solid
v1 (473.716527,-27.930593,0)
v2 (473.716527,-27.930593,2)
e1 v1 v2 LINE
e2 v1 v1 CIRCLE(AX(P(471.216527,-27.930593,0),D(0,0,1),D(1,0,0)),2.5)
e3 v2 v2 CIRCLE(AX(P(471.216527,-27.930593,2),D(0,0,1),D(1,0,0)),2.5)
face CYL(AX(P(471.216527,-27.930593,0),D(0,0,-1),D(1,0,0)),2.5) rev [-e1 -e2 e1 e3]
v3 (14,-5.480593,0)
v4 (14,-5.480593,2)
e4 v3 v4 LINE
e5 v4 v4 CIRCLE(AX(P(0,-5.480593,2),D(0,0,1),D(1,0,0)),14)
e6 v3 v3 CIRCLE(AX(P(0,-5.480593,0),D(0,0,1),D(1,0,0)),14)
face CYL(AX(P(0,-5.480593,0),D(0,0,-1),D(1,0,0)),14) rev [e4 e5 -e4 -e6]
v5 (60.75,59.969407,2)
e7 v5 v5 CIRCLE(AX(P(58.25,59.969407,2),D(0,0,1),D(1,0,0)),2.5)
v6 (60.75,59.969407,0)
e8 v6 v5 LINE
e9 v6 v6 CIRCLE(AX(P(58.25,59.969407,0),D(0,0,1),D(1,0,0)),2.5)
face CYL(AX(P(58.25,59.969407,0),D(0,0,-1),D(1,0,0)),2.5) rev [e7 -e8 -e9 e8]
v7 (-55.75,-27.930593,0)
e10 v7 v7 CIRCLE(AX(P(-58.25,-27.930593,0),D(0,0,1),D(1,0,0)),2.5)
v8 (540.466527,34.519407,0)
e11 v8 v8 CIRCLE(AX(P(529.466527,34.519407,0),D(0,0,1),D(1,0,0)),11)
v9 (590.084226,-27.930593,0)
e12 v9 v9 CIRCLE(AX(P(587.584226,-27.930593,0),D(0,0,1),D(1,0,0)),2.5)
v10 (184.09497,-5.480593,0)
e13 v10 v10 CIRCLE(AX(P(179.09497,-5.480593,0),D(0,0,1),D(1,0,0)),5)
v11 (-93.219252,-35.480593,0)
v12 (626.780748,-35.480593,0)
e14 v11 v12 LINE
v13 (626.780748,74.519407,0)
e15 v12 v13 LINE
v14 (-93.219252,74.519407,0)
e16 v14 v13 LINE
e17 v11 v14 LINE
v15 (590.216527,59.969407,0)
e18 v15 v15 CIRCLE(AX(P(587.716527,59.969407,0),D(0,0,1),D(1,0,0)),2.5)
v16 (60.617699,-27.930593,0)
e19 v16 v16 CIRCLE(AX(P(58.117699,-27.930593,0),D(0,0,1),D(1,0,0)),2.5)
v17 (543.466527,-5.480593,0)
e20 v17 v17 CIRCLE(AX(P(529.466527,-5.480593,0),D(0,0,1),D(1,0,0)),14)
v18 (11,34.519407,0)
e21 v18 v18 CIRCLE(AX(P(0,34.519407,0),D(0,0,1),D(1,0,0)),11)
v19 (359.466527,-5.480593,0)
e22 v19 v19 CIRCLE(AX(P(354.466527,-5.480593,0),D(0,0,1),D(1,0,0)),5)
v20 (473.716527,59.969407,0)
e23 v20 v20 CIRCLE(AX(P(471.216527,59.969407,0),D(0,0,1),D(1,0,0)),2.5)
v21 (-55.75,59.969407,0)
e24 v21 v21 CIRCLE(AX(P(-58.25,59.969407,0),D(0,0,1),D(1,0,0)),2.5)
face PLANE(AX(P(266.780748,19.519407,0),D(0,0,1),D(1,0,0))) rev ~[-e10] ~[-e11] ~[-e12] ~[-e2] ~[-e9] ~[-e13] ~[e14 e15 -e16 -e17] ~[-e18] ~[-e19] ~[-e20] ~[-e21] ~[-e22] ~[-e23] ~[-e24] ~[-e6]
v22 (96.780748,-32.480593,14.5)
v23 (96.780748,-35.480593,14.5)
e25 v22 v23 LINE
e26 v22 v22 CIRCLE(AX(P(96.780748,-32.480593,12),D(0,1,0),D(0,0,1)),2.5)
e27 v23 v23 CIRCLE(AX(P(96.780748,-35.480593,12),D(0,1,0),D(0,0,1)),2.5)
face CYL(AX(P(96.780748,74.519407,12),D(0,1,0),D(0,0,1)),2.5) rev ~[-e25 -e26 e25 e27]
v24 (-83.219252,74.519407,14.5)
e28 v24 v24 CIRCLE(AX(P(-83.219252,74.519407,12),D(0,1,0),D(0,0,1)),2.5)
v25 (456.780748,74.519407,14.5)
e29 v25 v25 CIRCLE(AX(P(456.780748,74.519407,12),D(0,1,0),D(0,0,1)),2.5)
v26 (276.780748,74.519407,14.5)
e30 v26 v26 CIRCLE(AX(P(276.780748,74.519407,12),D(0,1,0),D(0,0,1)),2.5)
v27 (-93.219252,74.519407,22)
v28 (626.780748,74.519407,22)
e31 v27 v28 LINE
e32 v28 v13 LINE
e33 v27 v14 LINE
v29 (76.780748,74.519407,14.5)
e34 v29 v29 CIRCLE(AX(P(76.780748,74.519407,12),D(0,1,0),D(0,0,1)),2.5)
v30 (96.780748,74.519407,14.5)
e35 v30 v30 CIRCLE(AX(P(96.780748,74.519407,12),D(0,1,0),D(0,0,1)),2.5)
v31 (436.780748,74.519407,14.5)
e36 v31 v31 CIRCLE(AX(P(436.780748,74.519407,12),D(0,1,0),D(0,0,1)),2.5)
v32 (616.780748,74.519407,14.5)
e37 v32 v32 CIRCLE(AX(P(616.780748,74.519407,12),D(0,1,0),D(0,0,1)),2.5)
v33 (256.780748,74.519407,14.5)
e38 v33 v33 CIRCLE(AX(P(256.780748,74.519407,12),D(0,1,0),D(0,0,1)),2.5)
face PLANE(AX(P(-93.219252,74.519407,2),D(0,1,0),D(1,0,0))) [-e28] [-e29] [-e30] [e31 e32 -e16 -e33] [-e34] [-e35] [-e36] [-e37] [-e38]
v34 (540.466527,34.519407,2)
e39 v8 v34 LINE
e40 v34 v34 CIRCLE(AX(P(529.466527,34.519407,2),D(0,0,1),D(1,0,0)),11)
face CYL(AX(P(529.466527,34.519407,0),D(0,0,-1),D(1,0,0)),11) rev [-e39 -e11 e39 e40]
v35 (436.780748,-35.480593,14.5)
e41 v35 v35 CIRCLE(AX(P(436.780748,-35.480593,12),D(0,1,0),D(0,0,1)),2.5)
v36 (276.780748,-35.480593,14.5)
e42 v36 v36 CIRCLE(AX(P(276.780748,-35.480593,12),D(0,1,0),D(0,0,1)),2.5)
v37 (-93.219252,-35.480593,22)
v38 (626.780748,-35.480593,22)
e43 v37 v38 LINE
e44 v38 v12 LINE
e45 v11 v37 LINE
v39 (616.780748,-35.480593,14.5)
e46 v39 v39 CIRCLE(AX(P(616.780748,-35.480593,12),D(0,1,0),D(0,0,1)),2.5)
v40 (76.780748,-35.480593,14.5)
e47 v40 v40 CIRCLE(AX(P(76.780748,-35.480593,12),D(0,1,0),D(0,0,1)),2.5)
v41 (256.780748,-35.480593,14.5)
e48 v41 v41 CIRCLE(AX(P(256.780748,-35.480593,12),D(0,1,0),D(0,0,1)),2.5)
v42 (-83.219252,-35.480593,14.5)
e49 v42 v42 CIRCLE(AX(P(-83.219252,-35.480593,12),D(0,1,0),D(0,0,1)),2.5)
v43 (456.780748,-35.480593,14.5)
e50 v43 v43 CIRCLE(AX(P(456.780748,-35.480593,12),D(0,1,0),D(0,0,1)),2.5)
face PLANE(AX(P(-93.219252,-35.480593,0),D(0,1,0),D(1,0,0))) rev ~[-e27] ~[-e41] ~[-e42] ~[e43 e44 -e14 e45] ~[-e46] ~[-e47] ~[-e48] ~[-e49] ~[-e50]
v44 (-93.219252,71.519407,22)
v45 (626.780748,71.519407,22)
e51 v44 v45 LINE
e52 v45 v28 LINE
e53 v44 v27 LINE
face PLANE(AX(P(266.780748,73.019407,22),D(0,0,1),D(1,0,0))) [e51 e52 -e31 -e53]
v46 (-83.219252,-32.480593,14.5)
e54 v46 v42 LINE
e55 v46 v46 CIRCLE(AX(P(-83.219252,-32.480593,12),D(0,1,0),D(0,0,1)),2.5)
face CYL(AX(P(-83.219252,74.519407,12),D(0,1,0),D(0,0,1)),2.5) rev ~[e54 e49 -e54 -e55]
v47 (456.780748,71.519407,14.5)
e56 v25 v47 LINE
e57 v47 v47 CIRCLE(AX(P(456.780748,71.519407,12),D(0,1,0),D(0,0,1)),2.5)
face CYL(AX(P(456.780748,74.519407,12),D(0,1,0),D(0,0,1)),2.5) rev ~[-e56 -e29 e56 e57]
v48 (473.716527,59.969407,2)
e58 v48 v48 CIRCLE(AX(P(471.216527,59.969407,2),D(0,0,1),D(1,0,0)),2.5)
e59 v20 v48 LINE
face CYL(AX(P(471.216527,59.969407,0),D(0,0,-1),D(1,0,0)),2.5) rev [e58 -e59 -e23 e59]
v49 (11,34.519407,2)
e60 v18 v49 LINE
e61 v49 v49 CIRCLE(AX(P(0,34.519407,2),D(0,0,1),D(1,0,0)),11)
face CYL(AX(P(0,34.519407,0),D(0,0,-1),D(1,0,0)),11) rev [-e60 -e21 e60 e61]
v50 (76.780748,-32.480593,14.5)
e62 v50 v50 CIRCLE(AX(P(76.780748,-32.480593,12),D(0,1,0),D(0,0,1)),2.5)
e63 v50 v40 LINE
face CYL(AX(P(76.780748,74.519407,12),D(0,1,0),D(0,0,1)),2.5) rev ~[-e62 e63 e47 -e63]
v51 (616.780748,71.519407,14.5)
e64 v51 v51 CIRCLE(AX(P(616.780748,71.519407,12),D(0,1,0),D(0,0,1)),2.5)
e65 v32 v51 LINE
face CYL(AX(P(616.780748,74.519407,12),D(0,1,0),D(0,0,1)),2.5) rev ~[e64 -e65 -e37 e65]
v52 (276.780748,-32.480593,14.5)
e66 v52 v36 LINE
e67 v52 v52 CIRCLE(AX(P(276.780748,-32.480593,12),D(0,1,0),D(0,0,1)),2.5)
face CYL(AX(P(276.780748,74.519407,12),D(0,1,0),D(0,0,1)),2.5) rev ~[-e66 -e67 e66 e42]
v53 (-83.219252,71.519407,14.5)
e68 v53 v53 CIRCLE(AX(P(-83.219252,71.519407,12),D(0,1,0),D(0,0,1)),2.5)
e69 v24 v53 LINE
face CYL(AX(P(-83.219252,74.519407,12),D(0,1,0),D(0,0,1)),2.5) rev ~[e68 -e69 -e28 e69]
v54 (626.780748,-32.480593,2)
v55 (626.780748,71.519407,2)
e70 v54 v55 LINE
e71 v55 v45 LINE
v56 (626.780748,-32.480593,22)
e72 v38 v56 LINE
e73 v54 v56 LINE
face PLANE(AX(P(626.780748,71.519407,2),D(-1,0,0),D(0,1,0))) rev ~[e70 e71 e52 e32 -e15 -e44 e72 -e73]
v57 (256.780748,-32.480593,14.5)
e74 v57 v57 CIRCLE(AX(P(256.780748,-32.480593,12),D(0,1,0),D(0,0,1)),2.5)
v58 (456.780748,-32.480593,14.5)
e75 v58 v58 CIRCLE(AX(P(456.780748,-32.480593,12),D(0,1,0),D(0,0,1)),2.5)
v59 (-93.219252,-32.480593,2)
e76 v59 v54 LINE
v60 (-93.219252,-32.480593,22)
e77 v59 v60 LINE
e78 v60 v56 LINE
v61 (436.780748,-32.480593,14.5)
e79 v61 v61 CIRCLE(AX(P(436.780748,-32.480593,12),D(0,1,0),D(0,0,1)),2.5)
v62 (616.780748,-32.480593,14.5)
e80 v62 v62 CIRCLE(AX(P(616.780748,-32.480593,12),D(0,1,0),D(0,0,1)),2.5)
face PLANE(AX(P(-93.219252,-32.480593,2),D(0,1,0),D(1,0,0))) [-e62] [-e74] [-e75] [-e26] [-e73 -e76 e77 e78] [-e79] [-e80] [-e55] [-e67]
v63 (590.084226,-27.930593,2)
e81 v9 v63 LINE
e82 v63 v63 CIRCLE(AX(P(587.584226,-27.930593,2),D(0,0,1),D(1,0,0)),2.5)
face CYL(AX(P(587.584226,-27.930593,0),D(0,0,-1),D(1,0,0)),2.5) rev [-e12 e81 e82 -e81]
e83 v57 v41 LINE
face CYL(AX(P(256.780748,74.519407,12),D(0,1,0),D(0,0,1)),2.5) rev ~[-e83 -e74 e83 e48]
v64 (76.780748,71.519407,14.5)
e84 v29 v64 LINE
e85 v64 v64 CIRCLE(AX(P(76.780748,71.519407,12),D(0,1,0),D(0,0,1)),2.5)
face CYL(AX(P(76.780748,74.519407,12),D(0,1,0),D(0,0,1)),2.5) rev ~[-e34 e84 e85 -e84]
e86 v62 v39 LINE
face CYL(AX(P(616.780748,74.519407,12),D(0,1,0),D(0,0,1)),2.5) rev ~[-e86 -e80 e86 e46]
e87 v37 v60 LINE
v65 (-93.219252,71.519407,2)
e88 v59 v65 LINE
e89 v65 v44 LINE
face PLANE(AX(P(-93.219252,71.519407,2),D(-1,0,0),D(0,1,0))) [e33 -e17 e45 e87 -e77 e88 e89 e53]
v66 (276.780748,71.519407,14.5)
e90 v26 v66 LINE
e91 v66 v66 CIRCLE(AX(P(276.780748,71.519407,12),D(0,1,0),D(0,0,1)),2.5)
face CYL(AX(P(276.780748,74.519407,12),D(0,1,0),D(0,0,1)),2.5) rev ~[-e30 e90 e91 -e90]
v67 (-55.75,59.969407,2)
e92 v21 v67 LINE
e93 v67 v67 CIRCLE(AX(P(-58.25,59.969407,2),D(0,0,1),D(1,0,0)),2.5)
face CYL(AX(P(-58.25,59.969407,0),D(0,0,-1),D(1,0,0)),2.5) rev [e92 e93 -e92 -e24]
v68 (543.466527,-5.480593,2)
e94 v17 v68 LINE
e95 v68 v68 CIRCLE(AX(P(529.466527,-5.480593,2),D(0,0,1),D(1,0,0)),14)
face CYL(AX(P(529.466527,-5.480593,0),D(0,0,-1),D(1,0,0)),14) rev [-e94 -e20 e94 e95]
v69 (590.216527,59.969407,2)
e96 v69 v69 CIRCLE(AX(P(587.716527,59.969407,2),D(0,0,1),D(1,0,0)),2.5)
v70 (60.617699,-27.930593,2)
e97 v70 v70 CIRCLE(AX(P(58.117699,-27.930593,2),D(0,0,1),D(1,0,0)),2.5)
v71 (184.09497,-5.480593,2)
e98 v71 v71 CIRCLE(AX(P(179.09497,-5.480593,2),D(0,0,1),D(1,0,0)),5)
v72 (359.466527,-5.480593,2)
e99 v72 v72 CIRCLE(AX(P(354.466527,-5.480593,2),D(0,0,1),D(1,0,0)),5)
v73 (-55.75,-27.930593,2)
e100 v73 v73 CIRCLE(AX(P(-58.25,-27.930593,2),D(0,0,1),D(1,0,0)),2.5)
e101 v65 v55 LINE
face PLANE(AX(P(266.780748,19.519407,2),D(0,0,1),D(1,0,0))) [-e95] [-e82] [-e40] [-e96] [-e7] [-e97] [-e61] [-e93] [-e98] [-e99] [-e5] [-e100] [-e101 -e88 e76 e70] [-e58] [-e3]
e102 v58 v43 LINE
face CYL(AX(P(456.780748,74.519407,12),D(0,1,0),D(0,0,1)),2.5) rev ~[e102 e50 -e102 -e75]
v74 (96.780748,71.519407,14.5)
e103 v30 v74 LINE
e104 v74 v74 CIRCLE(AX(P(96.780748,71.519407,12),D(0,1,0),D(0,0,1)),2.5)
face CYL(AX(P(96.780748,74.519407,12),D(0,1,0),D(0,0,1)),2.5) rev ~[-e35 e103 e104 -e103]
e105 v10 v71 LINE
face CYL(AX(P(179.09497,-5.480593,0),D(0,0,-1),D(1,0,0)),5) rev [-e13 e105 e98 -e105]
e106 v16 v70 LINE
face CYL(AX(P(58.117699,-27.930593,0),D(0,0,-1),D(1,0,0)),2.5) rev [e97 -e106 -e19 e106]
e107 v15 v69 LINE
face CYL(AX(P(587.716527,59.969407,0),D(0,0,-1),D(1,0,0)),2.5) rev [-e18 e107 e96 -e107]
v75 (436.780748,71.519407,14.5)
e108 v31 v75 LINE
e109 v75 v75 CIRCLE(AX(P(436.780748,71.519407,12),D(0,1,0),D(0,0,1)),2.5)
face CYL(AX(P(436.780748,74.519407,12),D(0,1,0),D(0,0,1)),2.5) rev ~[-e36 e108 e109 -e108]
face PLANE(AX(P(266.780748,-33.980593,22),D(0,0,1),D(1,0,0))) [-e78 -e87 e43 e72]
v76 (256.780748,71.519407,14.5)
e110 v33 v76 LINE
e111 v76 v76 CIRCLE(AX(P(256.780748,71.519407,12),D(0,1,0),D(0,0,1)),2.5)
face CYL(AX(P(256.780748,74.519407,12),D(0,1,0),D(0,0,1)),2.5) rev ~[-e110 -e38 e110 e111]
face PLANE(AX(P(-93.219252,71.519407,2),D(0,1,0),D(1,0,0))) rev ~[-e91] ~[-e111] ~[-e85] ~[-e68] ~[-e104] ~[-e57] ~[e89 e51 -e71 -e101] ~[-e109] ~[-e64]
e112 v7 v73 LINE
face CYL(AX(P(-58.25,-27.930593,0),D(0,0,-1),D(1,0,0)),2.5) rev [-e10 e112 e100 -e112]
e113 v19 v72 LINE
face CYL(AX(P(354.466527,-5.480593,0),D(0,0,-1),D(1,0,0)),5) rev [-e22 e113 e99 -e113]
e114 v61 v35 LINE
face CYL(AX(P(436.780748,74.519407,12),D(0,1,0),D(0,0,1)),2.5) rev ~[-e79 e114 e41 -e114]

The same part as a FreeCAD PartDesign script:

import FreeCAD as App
import Part
import Sketcher

V = App.Vector
Q = App.Units.Quantity

doc = App.newDocument("Part")
body = doc.addObject("PartDesign::Body", "Body")

# Sketch on XY plane
sketch1 = doc.addObject("Sketcher::SketchObject", "Sketch")
body.addObject(sketch1)
sketch1.AttachmentSupport = (doc.XY_Plane, [""])
sketch1.MapMode = "FlatFace"
sketch1.addGeometry(Part.LineSegment(V(-93.2, 74.5, 0), V(-93.2, -35.5, 0)), False)
sketch1.addGeometry(Part.LineSegment(V(-93.2, -35.5, 0), V(626.8, -35.5, 0)), False)
sketch1.addGeometry(Part.LineSegment(V(626.8, -35.5, 0), V(626.8, 74.5, 0)), False)
sketch1.addGeometry(Part.LineSegment(V(626.8, 74.5, 0), V(-93.2, 74.5, 0)), False)
sketch1.addGeometry(Part.Circle(V(-58.2, -27.9, 0), V(0, 0, 1), 2.5), False)
sketch1.addGeometry(Part.Circle(V(58.1, -27.9, 0), V(0, 0, 1), 2.5), False)
sketch1.addGeometry(Part.Circle(V(0, -5.5, 0), V(0, 0, 1), 14), False)
sketch1.addGeometry(Part.Circle(V(179.1, -5.5, 0), V(0, 0, 1), 5), False)
sketch1.addGeometry(Part.Circle(V(471.2, -27.9, 0), V(0, 0, 1), 2.5), False)
sketch1.addGeometry(Part.Circle(V(587.6, -27.9, 0), V(0, 0, 1), 2.5), False)
sketch1.addGeometry(Part.Circle(V(354.5, -5.5, 0), V(0, 0, 1), 5), False)
sketch1.addGeometry(Part.Circle(V(529.5, -5.5, 0), V(0, 0, 1), 14), False)
sketch1.addGeometry(Part.Circle(V(0, 34.5, 0), V(0, 0, 1), 11), False)
sketch1.addGeometry(Part.Circle(V(-58.2, 60, 0), V(0, 0, 1), 2.5), False)
sketch1.addGeometry(Part.Circle(V(58.2, 60, 0), V(0, 0, 1), 2.5), False)
sketch1.addGeometry(Part.Circle(V(529.5, 34.5, 0), V(0, 0, 1), 11), False)
sketch1.addGeometry(Part.Circle(V(471.2, 60, 0), V(0, 0, 1), 2.5), False)
sketch1.addGeometry(Part.Circle(V(587.7, 60, 0), V(0, 0, 1), 2.5), False)
sketch1.addConstraint(Sketcher.Constraint("Coincident", 0, 2, 1, 1))
sketch1.addConstraint(Sketcher.Constraint("Coincident", 1, 2, 2, 1))
sketch1.addConstraint(Sketcher.Constraint("Coincident", 2, 2, 3, 1))
sketch1.addConstraint(Sketcher.Constraint("Coincident", 3, 2, 0, 1))
sketch1.addConstraint(Sketcher.Constraint("Vertical", 0))
sketch1.addConstraint(Sketcher.Constraint("Horizontal", 1))
sketch1.addConstraint(Sketcher.Constraint("Vertical", 2))
sketch1.addConstraint(Sketcher.Constraint("Horizontal", 3))
sketch1.addConstraint(Sketcher.Constraint("Equal", 4, 5))
sketch1.addConstraint(Sketcher.Constraint("Equal", 5, 8))
sketch1.addConstraint(Sketcher.Constraint("Equal", 8, 9))
sketch1.addConstraint(Sketcher.Constraint("Equal", 7, 10))
sketch1.addConstraint(Sketcher.Constraint("Equal", 6, 11))
sketch1.addConstraint(Sketcher.Constraint("Equal", 9, 13))
sketch1.addConstraint(Sketcher.Constraint("Equal", 13, 14))
sketch1.addConstraint(Sketcher.Constraint("Equal", 12, 15))
sketch1.addConstraint(Sketcher.Constraint("Equal", 14, 16))
sketch1.addConstraint(Sketcher.Constraint("Equal", 16, 17))
sketch1.addConstraint(Sketcher.Constraint("Symmetric", 13, 3, 14, 3, -2))
sketch1.addConstraint(Sketcher.Constraint("PointOnObject", 6, 3, -2))
sketch1.addConstraint(Sketcher.Constraint("PointOnObject", 12, 3, -2))
sketch1.addConstraint(Sketcher.Constraint("Horizontal", 4, 3, 5, 3))
sketch1.addConstraint(Sketcher.Constraint("Horizontal", 6, 3, 7, 3))
sketch1.addConstraint(Sketcher.Constraint("Horizontal", 5, 3, 8, 3))
sketch1.addConstraint(Sketcher.Constraint("Horizontal", 8, 3, 9, 3))
sketch1.addConstraint(Sketcher.Constraint("Horizontal", 7, 3, 10, 3))
sketch1.addConstraint(Sketcher.Constraint("Horizontal", 10, 3, 11, 3))
sketch1.addConstraint(Sketcher.Constraint("Horizontal", 12, 3, 15, 3))
sketch1.addConstraint(Sketcher.Constraint("Horizontal", 14, 3, 16, 3))
sketch1.addConstraint(Sketcher.Constraint("Horizontal", 16, 3, 17, 3))
sketch1.addConstraint(Sketcher.Constraint("Vertical", 4, 3, 13, 3))
sketch1.addConstraint(Sketcher.Constraint("Vertical", 11, 3, 15, 3))
sketch1.addConstraint(Sketcher.Constraint("Vertical", 8, 3, 16, 3))
sketch1.addConstraint(Sketcher.Constraint("Diameter", 4, Q("5 mm")))
sketch1.addConstraint(Sketcher.Constraint("Diameter", 6, Q("28 mm")))
sketch1.addConstraint(Sketcher.Constraint("Diameter", 7, Q("10 mm")))
sketch1.addConstraint(Sketcher.Constraint("Diameter", 12, Q("22 mm")))
sketch1.addConstraint(Sketcher.Constraint("DistanceX", 1, 1, 1, 2, Q("720 mm")))
sketch1.addConstraint(Sketcher.Constraint("DistanceY", 0, 2, 0, 1, Q("110 mm")))
sketch1.addConstraint(Sketcher.Constraint("DistanceX", 10, 3, 11, 3, Q("175 mm")))
sketch1.addConstraint(Sketcher.Constraint("DistanceY", 6, 3, 12, 3, Q("40 mm")))
sketch1.addConstraint(Sketcher.Constraint("DistanceY", 0, 2, 6, 3, Q("30 mm")))
sketch1.addConstraint(Sketcher.Constraint("DistanceY", 4, 3, 13, 3, Q("87.9 mm")))
sketch1.addConstraint(Sketcher.Constraint("DistanceX", 13, 3, 14, 3, Q("116.5 mm")))
sketch1.addConstraint(Sketcher.Constraint("DistanceX", 16, 3, 17, 3, Q("116.5 mm")))
sketch1.addConstraint(Sketcher.Constraint("DistanceY", 5, 3, 6, 3, Q("22.45 mm")))
sketch1.addConstraint(Sketcher.Constraint("DistanceX", 10, 3, 8, 3, Q("116.75 mm")))
sketch1.addConstraint(Sketcher.Constraint("DistanceX", -1, 1, 5, 3, Q("58.117699 mm")))
sketch1.addConstraint(Sketcher.Constraint("DistanceX", 8, 3, 9, 3, Q("116.367699 mm")))
sketch1.addConstraint(Sketcher.Constraint("DistanceX", -1, 1, 7, 3, Q("179.09497 mm")))
sketch1.addConstraint(Sketcher.Constraint("DistanceX", 0, 2, -1, 1, Q("93.219252 mm")))
sketch1.addConstraint(Sketcher.Constraint("DistanceX", 11, 3, 1, 2, Q("97.314222 mm")))
sketch1.addConstraint(Sketcher.Constraint("DistanceY", 4, 3, -1, 1, Q("27.930593 mm")))
pad1 = doc.addObject("PartDesign::Pad", "Pad")
body.addObject(pad1)
pad1.Profile = sketch1
pad1.Length = 2

# Sketch on XY plane
sketch2 = doc.addObject("Sketcher::SketchObject", "Sketch001")
body.addObject(sketch2)
sketch2.AttachmentSupport = (doc.XY_Plane, [""])
sketch2.MapMode = "FlatFace"
sketch2.AttachmentOffset = App.Placement(V(0, 0, 2), App.Rotation())
sketch2.addGeometry(Part.LineSegment(V(-93.2, 74.5, 0), V(-93.2, 71.5, 0)), False)
sketch2.addGeometry(Part.LineSegment(V(-93.2, 71.5, 0), V(626.8, 71.5, 0)), False)
sketch2.addGeometry(Part.LineSegment(V(626.8, 71.5, 0), V(626.8, 74.5, 0)), False)
sketch2.addGeometry(Part.LineSegment(V(626.8, 74.5, 0), V(-93.2, 74.5, 0)), False)
sketch2.addGeometry(Part.LineSegment(V(-93.2, -32.5, 0), V(-93.2, -35.5, 0)), False)
sketch2.addGeometry(Part.LineSegment(V(-93.2, -35.5, 0), V(626.8, -35.5, 0)), False)
sketch2.addGeometry(Part.LineSegment(V(626.8, -35.5, 0), V(626.8, -32.5, 0)), False)
sketch2.addGeometry(Part.LineSegment(V(626.8, -32.5, 0), V(-93.2, -32.5, 0)), False)
sketch2.addConstraint(Sketcher.Constraint("Coincident", 0, 2, 1, 1))
sketch2.addConstraint(Sketcher.Constraint("Coincident", 1, 2, 2, 1))
sketch2.addConstraint(Sketcher.Constraint("Coincident", 2, 2, 3, 1))
sketch2.addConstraint(Sketcher.Constraint("Coincident", 3, 2, 0, 1))
sketch2.addConstraint(Sketcher.Constraint("Coincident", 4, 2, 5, 1))
sketch2.addConstraint(Sketcher.Constraint("Coincident", 5, 2, 6, 1))
sketch2.addConstraint(Sketcher.Constraint("Coincident", 6, 2, 7, 1))
sketch2.addConstraint(Sketcher.Constraint("Coincident", 7, 2, 4, 1))
sketch2.addConstraint(Sketcher.Constraint("Vertical", 0))
sketch2.addConstraint(Sketcher.Constraint("Horizontal", 1))
sketch2.addConstraint(Sketcher.Constraint("Vertical", 2))
sketch2.addConstraint(Sketcher.Constraint("Horizontal", 3))
sketch2.addConstraint(Sketcher.Constraint("Vertical", 4))
sketch2.addConstraint(Sketcher.Constraint("Horizontal", 5))
sketch2.addConstraint(Sketcher.Constraint("Vertical", 6))
sketch2.addConstraint(Sketcher.Constraint("Horizontal", 7))
sketch2.addConstraint(Sketcher.Constraint("Vertical", 3, 2, 4, 2))
sketch2.addConstraint(Sketcher.Constraint("Vertical", 2, 2, 5, 2))
sketch2.addConstraint(Sketcher.Constraint("Equal", 2, 4))
sketch2.addConstraint(Sketcher.Constraint("DistanceX", 1, 1, 1, 2, Q("720 mm")))
sketch2.addConstraint(Sketcher.Constraint("DistanceY", 0, 2, 0, 1, Q("3 mm")))
sketch2.addConstraint(Sketcher.Constraint("DistanceY", 4, 2, 0, 2, Q("107 mm")))
sketch2.addConstraint(Sketcher.Constraint("DistanceX", 0, 2, -1, 1, Q("93.219252 mm")))
sketch2.addConstraint(Sketcher.Constraint("DistanceY", -1, 1, 0, 2, Q("71.519407 mm")))
pad2 = doc.addObject("PartDesign::Pad", "Pad001")
body.addObject(pad2)
pad2.Profile = sketch2
pad2.Length = 20

# Sketch on XZ plane
sketch3 = doc.addObject("Sketcher::SketchObject", "Sketch002")
body.addObject(sketch3)
sketch3.AttachmentSupport = (doc.XZ_Plane, [""])
sketch3.MapMode = "FlatFace"
sketch3.AttachmentOffset = App.Placement(V(0, 0, -74.519407), App.Rotation())
sketch3.addGeometry(Part.Circle(V(456.8, 12, 0), V(0, 0, 1), 2.5), False)
sketch3.addGeometry(Part.Circle(V(616.8, 12, 0), V(0, 0, 1), 2.5), False)
sketch3.addGeometry(Part.Circle(V(436.8, 12, 0), V(0, 0, 1), 2.5), False)
sketch3.addGeometry(Part.Circle(V(276.8, 12, 0), V(0, 0, 1), 2.5), False)
sketch3.addGeometry(Part.Circle(V(256.8, 12, 0), V(0, 0, 1), 2.5), False)
sketch3.addGeometry(Part.Circle(V(96.8, 12, 0), V(0, 0, 1), 2.5), False)
sketch3.addGeometry(Part.Circle(V(76.8, 12, 0), V(0, 0, 1), 2.5), False)
sketch3.addGeometry(Part.Circle(V(-83.2, 12, 0), V(0, 0, 1), 2.5), False)
sketch3.addConstraint(Sketcher.Constraint("Equal", 0, 1))
sketch3.addConstraint(Sketcher.Constraint("Equal", 1, 2))
sketch3.addConstraint(Sketcher.Constraint("Equal", 2, 3))
sketch3.addConstraint(Sketcher.Constraint("Equal", 3, 4))
sketch3.addConstraint(Sketcher.Constraint("Equal", 4, 5))
sketch3.addConstraint(Sketcher.Constraint("Equal", 5, 6))
sketch3.addConstraint(Sketcher.Constraint("Equal", 6, 7))
sketch3.addConstraint(Sketcher.Constraint("Horizontal", 0, 3, 1, 3))
sketch3.addConstraint(Sketcher.Constraint("Horizontal", 1, 3, 2, 3))
sketch3.addConstraint(Sketcher.Constraint("Horizontal", 2, 3, 3, 3))
sketch3.addConstraint(Sketcher.Constraint("Horizontal", 3, 3, 4, 3))
sketch3.addConstraint(Sketcher.Constraint("Horizontal", 4, 3, 5, 3))
sketch3.addConstraint(Sketcher.Constraint("Horizontal", 5, 3, 6, 3))
sketch3.addConstraint(Sketcher.Constraint("Horizontal", 6, 3, 7, 3))
sketch3.addConstraint(Sketcher.Constraint("Diameter", 0, Q("5 mm")))
sketch3.addConstraint(Sketcher.Constraint("DistanceY", -1, 1, 0, 3, Q("12 mm")))
sketch3.addConstraint(Sketcher.Constraint("DistanceX", 0, 3, 1, 3, Q("160 mm")))
sketch3.addConstraint(Sketcher.Constraint("DistanceX", 2, 3, 0, 3, Q("20 mm")))
sketch3.addConstraint(Sketcher.Constraint("DistanceX", 3, 3, 2, 3, Q("160 mm")))
sketch3.addConstraint(Sketcher.Constraint("DistanceX", 4, 3, 3, 3, Q("20 mm")))
sketch3.addConstraint(Sketcher.Constraint("DistanceX", 5, 3, 4, 3, Q("160 mm")))
sketch3.addConstraint(Sketcher.Constraint("DistanceX", 6, 3, 5, 3, Q("20 mm")))
sketch3.addConstraint(Sketcher.Constraint("DistanceX", 7, 3, 6, 3, Q("160 mm")))
sketch3.addConstraint(Sketcher.Constraint("DistanceX", -1, 1, 0, 3, Q("456.780748 mm")))
pocket1 = doc.addObject("PartDesign::Pocket", "Pocket")
body.addObject(pocket1)
pocket1.Profile = sketch3
pocket1.Length = 114
pocket1.Reversed = True

doc.recompute()
